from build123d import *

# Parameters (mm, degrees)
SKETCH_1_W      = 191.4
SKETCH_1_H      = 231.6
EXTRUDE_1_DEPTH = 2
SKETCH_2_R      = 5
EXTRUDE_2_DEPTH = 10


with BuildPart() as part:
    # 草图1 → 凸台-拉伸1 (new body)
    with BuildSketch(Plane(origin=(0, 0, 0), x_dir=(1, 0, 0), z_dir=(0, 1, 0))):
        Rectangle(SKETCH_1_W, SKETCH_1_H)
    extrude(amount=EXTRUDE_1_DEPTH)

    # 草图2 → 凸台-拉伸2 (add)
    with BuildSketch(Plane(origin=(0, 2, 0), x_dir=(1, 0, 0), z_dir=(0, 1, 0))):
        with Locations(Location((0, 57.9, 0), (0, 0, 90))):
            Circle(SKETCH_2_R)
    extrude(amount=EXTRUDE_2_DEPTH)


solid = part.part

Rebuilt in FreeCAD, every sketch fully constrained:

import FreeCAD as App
import Part
import Sketcher
from FreeCAD import Vector

doc = App.newDocument("Part")
params = doc.addObject("Spreadsheet::Sheet", "Params")
for row, (alias, value) in enumerate([
    ("sketch1_width", "191.4 mm"),
    ("sketch1_height", "231.6 mm"),
    ("pad1_length", "2 mm"),
    ("sketch2_diameter", "10 mm"),
    ("pad2_length", "10 mm"),
], start=1):
    params.set(f"A{row}", alias)
    params.set(f"B{row}", "=" + value)
    params.setAlias(f"B{row}", alias)

body = doc.addObject("PartDesign::Body", "Body")

# Sketch on XZ plane
sketch1 = doc.addObject("Sketcher::SketchObject", "Sketch")
body.addObject(sketch1)
sketch1.AttachmentSupport = (doc.XZ_Plane, [""])
sketch1.MapMode = "FlatFace"
sketch1.addGeometry(Part.LineSegment(Vector(-95.7, -115.8, 0), Vector(-95.7, 115.8, 0)), False)
sketch1.addGeometry(Part.LineSegment(Vector(-95.7, 115.8, 0), Vector(95.7, 115.8, 0)), False)
sketch1.addGeometry(Part.LineSegment(Vector(95.7, 115.8, 0), Vector(95.7, -115.8, 0)), False)
sketch1.addGeometry(Part.LineSegment(Vector(95.7, -115.8, 0), Vector(-95.7, -115.8, 0)), False)
sketch1.addConstraint(Sketcher.Constraint("Coincident", 0, 2, 1, 1))
sketch1.addConstraint(Sketcher.Constraint("Coincident", 1, 2, 2, 1))
sketch1.addConstraint(Sketcher.Constraint("Coincident", 2, 2, 3, 1))
sketch1.addConstraint(Sketcher.Constraint("Coincident", 3, 2, 0, 1))
sketch1.addConstraint(Sketcher.Constraint("Vertical", 0))
sketch1.addConstraint(Sketcher.Constraint("Horizontal", 1))
sketch1.addConstraint(Sketcher.Constraint("Vertical", 2))
sketch1.addConstraint(Sketcher.Constraint("Horizontal", 3))
sketch1.addConstraint(Sketcher.Constraint("Symmetric", 0, 2, 2, 2, -1, 1))
sketch1.addConstraint(Sketcher.Constraint("DistanceX", 1, 1, 1, 2, 191.4))
sketch1.addConstraint(Sketcher.Constraint("DistanceY", 0, 1, 0, 2, 231.6))
sketch1.setExpression("Constraints[9]", "Params.sketch1_width")
sketch1.setExpression("Constraints[10]", "Params.sketch1_height")
pad1 = doc.addObject("PartDesign::Pad", "Pad")
body.addObject(pad1)
pad1.Profile = sketch1
pad1.setExpression("Length", "Params.pad1_length")
pad1.Reversed = True

# Sketch on XZ plane
sketch2 = doc.addObject("Sketcher::SketchObject", "Sketch001")
body.addObject(sketch2)
sketch2.AttachmentSupport = (doc.XZ_Plane, [""])
sketch2.MapMode = "FlatFace"
sketch2.AttachmentOffset = App.Placement(Vector(0, 0, -2), App.Rotation())
sketch2.addGeometry(Part.Circle(Vector(0, -57.9, 0), Vector(0, 0, 1), 5), False)
sketch2.addConstraint(Sketcher.Constraint("PointOnObject", 0, 3, -2))
sketch2.addConstraint(Sketcher.Constraint("Diameter", 0, 10.0))
sketch2.addConstraint(Sketcher.Constraint("DistanceY", 0, 3, -1, 1, 57.9))
sketch2.setExpression("Constraints[1]", "Params.sketch2_diameter")
pad2 = doc.addObject("PartDesign::Pad", "Pad001")
body.addObject(pad2)
pad2.Profile = sketch2
pad2.setExpression("Length", "Params.pad2_length")
pad2.Reversed = True

doc.recompute()
